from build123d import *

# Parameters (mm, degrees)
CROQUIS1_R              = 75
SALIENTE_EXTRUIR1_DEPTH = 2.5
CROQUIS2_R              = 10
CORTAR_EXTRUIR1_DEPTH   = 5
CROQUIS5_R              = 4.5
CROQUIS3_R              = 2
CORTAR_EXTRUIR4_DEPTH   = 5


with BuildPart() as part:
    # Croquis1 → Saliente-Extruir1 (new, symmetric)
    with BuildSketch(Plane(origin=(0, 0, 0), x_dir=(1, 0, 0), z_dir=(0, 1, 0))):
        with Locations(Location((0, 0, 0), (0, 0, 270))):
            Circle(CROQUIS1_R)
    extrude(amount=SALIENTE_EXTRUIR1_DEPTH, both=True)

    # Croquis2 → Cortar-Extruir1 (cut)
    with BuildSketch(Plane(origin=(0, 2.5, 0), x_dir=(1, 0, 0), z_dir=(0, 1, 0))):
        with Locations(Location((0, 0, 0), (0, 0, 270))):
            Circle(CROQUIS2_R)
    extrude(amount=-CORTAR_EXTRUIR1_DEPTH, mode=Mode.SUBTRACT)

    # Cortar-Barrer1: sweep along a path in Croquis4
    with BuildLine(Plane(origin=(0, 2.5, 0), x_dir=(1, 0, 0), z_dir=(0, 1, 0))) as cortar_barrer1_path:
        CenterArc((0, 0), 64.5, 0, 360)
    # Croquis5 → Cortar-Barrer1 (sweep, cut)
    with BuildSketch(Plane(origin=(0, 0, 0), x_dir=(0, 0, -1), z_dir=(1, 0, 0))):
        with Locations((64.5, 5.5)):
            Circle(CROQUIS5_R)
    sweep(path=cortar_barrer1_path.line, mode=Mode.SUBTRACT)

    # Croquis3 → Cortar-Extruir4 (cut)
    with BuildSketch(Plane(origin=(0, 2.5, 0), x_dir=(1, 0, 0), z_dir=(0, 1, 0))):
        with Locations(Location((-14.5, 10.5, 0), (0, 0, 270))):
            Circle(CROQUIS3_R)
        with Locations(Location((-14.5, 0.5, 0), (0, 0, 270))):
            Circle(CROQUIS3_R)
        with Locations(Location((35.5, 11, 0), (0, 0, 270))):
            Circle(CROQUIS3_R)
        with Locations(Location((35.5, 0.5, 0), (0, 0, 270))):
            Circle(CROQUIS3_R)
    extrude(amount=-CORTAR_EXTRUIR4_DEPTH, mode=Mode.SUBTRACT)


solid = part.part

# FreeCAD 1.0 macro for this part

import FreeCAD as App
import Part
import Sketcher
from FreeCAD import Vector
Q = App.Units.Quantity

doc = App.newDocument("Part")
body = doc.addObject("PartDesign::Body", "Body")

sketch1 = body.newObject("Sketcher::SketchObject", "Sketch")
sketch1.AttachmentSupport = (doc.getObject("XZ_Plane"), [""])
sketch1.MapMode = "FlatFace"
sketch1.addGeometry(Part.Circle(Vector(0, 0, 0), Vector(0, 0, 1), 75), False)
sketch1.addConstraint(Sketcher.Constraint("Coincident", 0, 3, -1, 1))
sketch1.addConstraint(Sketcher.Constraint("Diameter", 0, Q("150 mm")))
pad1 = body.newObject("PartDesign::Pad", "Pad")
pad1.Profile = sketch1
pad1.Length = 5
pad1.Midplane = True

sketch2 = body.newObject("Sketcher::SketchObject", "Sketch001")
sketch2.AttachmentSupport = (doc.getObject("XZ_Plane"), [""])
sketch2.MapMode = "FlatFace"
sketch2.AttachmentOffset = App.Placement(Vector(0, 0, -2.5), App.Rotation())
sketch2.addGeometry(Part.Circle(Vector(0, 0, 0), Vector(0, 0, 1), 10), False)
sketch2.addConstraint(Sketcher.Constraint("Coincident", 0, 3, -1, 1))
sketch2.addConstraint(Sketcher.Constraint("Diameter", 0, Q("20 mm")))
pocket1 = body.newObject("PartDesign::Pocket", "Pocket")
pocket1.Profile = sketch2
pocket1.Length = 5
pocket1.Reversed = True

sketch3 = body.newObject("Sketcher::SketchObject", "Sketch002")
sketch3.AttachmentSupport = (doc.getObject("YZ_Plane"), [""])
sketch3.MapMode = "FlatFace"
sketch3.addGeometry(Part.Circle(Vector(5.5, -64.5, 0), Vector(0, 0, 1), 4.5), False)
sketch3.addConstraint(Sketcher.Constraint("Diameter", 0, Q("9 mm")))
sketch3.addConstraint(Sketcher.Constraint("DistanceX", -1, 1, 0, 3, Q("5.5 mm")))
sketch3.addConstraint(Sketcher.Constraint("DistanceY", 0, 3, -1, 1, Q("64.5 mm")))

sketch4 = body.newObject("Sketcher::SketchObject", "Sketch003")
sketch4.AttachmentSupport = (doc.getObject("XZ_Plane"), [""])
sketch4.MapMode = "FlatFace"
sketch4.AttachmentOffset = App.Placement(Vector(0, 0, -2.5), App.Rotation())
sketch4.addGeometry(Part.Circle(Vector(0, 0, 0), Vector(0, 0, 1), 64.5), False)
sketch4.addConstraint(Sketcher.Constraint("Coincident", 0, 3, -1, 1))
sketch4.addConstraint(Sketcher.Constraint("Diameter", 0, Q("129 mm")))
doc.recompute()

subtractivepipe = body.newObject("PartDesign::SubtractivePipe", "SubtractivePipe")
subtractivepipe.Profile = sketch3
subtractivepipe.Spine = (sketch4, ["Edge1"])

sketch5 = body.newObject("Sketcher::SketchObject", "Sketch004")
sketch5.AttachmentSupport = (doc.getObject("XZ_Plane"), [""])
sketch5.MapMode = "FlatFace"
sketch5.AttachmentOffset = App.Placement(Vector(0, 0, -2.5), App.Rotation())
sketch5.addGeometry(Part.Circle(Vector(-14.5, -10.5, 0), Vector(0, 0, 1), 2), False)
sketch5.addGeometry(Part.Circle(Vector(-14.5, -0.5, 0), Vector(0, 0, 1), 2), False)
sketch5.addGeometry(Part.Circle(Vector(35.5, -11, 0), Vector(0, 0, 1), 2), False)
sketch5.addGeometry(Part.Circle(Vector(35.5, -0.5, 0), Vector(0, 0, 1), 2), False)
sketch5.addConstraint(Sketcher.Constraint("Equal", 0, 1))
sketch5.addConstraint(Sketcher.Constraint("Equal", 1, 2))
sketch5.addConstraint(Sketcher.Constraint("Equal", 2, 3))
sketch5.addConstraint(Sketcher.Constraint("Horizontal", 1, 3, 3, 3))
sketch5.addConstraint(Sketcher.Constraint("Vertical", 0, 3, 1, 3))
sketch5.addConstraint(Sketcher.Constraint("Vertical", 2, 3, 3, 3))
sketch5.addConstraint(Sketcher.Constraint("Diameter", 0, Q("4 mm")))
sketch5.addConstraint(Sketcher.Constraint("DistanceY", 2, 3, -1, 1, Q("11 mm")))
sketch5.addConstraint(Sketcher.Constraint("DistanceY", 0, 3, 1, 3, Q("10 mm")))
sketch5.addConstraint(Sketcher.Constraint("DistanceX", 0, 3, 2, 3, Q("50 mm")))
sketch5.addConstraint(Sketcher.Constraint("DistanceX", 0, 3, -1, 1, Q("14.5 mm")))
sketch5.addConstraint(Sketcher.Constraint("DistanceY", 0, 3, -1, 1, Q("10.5 mm")))
pocket2 = body.newObject("PartDesign::Pocket", "Pocket001")
pocket2.Profile = sketch5
pocket2.Length = 5
pocket2.Reversed = True

doc.recompute()
